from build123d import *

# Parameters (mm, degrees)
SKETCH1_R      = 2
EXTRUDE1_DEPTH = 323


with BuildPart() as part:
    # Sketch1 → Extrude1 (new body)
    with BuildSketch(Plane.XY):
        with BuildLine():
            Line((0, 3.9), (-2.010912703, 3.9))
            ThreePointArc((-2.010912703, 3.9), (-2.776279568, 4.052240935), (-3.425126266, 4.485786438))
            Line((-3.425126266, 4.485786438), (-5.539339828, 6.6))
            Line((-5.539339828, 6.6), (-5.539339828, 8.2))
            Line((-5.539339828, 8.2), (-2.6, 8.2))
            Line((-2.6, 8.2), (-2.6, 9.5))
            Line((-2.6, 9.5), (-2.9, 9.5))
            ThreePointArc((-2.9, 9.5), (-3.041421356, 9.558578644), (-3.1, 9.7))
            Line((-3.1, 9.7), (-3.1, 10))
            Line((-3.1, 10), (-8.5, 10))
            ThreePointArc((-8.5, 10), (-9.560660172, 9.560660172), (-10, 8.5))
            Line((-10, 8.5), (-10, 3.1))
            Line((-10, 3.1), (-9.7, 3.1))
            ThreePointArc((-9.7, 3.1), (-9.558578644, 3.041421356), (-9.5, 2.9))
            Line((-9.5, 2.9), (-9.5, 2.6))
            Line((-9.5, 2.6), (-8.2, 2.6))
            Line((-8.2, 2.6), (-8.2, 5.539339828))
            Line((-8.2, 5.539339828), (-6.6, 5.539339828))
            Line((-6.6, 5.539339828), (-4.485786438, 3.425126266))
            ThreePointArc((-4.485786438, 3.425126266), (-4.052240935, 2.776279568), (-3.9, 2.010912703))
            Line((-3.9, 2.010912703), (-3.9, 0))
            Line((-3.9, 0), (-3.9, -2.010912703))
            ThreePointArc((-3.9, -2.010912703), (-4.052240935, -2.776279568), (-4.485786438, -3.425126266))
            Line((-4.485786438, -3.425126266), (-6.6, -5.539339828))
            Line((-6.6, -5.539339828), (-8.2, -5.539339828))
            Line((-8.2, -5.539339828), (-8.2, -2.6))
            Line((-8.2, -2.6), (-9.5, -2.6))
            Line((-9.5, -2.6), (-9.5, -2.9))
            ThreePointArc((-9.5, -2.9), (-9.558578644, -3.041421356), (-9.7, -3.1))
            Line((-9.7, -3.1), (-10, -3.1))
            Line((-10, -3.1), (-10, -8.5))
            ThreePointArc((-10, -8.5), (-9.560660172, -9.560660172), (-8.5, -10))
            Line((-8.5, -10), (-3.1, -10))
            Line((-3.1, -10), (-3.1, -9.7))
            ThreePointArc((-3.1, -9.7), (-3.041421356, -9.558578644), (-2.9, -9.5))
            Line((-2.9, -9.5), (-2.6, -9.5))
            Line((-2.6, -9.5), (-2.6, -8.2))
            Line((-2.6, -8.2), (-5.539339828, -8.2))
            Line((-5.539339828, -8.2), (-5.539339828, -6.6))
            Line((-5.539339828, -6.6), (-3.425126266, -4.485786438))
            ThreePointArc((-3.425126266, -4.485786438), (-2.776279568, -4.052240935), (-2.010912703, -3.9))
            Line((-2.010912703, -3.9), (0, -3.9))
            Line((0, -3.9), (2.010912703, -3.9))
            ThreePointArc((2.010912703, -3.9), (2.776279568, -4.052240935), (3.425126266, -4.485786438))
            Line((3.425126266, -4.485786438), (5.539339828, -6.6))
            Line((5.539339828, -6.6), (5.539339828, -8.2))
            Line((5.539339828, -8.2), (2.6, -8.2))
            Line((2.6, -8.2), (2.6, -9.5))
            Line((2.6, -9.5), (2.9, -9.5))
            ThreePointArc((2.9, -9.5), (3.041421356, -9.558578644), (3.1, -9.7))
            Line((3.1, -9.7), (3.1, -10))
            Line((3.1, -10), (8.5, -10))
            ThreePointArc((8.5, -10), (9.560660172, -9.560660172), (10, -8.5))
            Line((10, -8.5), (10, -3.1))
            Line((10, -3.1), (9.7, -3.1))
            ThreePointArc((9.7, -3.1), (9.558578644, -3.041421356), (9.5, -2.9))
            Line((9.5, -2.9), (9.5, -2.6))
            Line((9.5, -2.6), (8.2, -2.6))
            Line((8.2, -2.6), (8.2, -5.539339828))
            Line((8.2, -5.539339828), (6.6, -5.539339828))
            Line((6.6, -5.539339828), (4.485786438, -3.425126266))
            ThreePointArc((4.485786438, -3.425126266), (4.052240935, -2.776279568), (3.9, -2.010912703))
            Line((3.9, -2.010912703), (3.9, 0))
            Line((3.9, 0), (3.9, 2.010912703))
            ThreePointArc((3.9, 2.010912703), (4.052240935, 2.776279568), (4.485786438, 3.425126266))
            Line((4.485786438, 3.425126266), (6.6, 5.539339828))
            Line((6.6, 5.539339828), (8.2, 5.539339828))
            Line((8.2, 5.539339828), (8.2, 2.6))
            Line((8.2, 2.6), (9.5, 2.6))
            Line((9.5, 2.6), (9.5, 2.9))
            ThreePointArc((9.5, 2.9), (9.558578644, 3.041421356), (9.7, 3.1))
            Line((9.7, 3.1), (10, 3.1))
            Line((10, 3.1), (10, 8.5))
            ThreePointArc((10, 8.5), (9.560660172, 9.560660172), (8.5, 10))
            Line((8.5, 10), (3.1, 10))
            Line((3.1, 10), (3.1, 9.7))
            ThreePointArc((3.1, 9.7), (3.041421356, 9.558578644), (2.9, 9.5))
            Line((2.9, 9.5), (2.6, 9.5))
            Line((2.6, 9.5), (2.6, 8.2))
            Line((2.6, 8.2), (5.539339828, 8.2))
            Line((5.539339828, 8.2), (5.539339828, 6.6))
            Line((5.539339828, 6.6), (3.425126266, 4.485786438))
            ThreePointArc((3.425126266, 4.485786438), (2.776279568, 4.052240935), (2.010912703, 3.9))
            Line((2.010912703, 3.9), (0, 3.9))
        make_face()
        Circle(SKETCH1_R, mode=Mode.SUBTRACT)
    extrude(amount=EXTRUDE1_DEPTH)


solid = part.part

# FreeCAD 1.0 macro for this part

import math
import FreeCAD as App
import Part
import Sketcher

V = App.Vector
Q = App.Units.Quantity

doc = App.newDocument("Part")
body = doc.addObject("PartDesign::Body", "Body")

# Sketch on XY plane
sketch1 = doc.addObject("Sketcher::SketchObject", "Sketch")
body.addObject(sketch1)
sketch1.AttachmentSupport = (doc.XY_Plane, [""])
sketch1.MapMode = "FlatFace"
sketch1.addGeometry([
    Part.ArcOfCircle(Part.Circle(V(-2.010913, 5.9, 0), V(0, 0, 1), 2), math.radians(-135), math.radians(-90)),  # 0
    Part.LineSegment(V(-3.425126, 4.485786, 0), V(-5.53934, 6.6, 0)),  # 1
    Part.LineSegment(V(-5.53934, 6.6, 0), V(-5.53934, 8.2, 0)),  # 2
    Part.LineSegment(V(-5.53934, 8.2, 0), V(-2.6, 8.2, 0)),  # 3
    Part.LineSegment(V(-2.6, 8.2, 0), V(-2.6, 9.5, 0)),  # 4
    Part.LineSegment(V(-2.6, 9.5, 0), V(-2.9, 9.5, 0)),  # 5
    Part.ArcOfCircle(Part.Circle(V(-2.9, 9.7, 0), V(0, 0, 1), 0.2), math.radians(-180), math.radians(-90)),  # 6
    Part.LineSegment(V(-3.1, 9.7, 0), V(-3.1, 10, 0)),  # 7
    Part.LineSegment(V(-3.1, 10, 0), V(-8.5, 10, 0)),  # 8
    Part.ArcOfCircle(Part.Circle(V(-8.5, 8.5, 0), V(0, 0, 1), 1.5), math.radians(90), math.radians(180)),  # 9
    Part.LineSegment(V(-10, 8.5, 0), V(-10, 3.1, 0)),  # 10
    Part.LineSegment(V(-10, 3.1, 0), V(-9.7, 3.1, 0)),  # 11
    Part.ArcOfCircle(Part.Circle(V(-9.7, 2.9, 0), V(0, 0, 1), 0.2), math.radians(0), math.radians(90)),  # 12
    Part.LineSegment(V(-9.5, 2.9, 0), V(-9.5, 2.6, 0)),  # 13
    Part.LineSegment(V(-9.5, 2.6, 0), V(-8.2, 2.6, 0)),  # 14
    Part.LineSegment(V(-8.2, 2.6, 0), V(-8.2, 5.53934, 0)),  # 15
    Part.LineSegment(V(-8.2, 5.53934, 0), V(-6.6, 5.53934, 0)),  # 16
    Part.LineSegment(V(-6.6, 5.53934, 0), V(-4.485786, 3.425126, 0)),  # 17
    Part.ArcOfCircle(Part.Circle(V(-5.9, 2.010913, 0), V(0, 0, 1), 2), math.radians(0), math.radians(45)),  # 18
    Part.LineSegment(V(-3.9, 2.010913, 0), V(-3.9, -2.010913, 0)),  # 19
    Part.ArcOfCircle(Part.Circle(V(-5.9, -2.010913, 0), V(0, 0, 1), 2), math.radians(-45), math.radians(0)),  # 20
    Part.LineSegment(V(-4.485786, -3.425126, 0), V(-6.6, -5.53934, 0)),  # 21
    Part.LineSegment(V(-6.6, -5.53934, 0), V(-8.2, -5.53934, 0)),  # 22
    Part.LineSegment(V(-8.2, -5.53934, 0), V(-8.2, -2.6, 0)),  # 23
    Part.LineSegment(V(-8.2, -2.6, 0), V(-9.5, -2.6, 0)),  # 24
    Part.LineSegment(V(-9.5, -2.6, 0), V(-9.5, -2.9, 0)),  # 25
    Part.ArcOfCircle(Part.Circle(V(-9.7, -2.9, 0), V(0, 0, 1), 0.2), math.radians(-90), math.radians(0)),  # 26
    Part.LineSegment(V(-9.7, -3.1, 0), V(-10, -3.1, 0)),  # 27
    Part.LineSegment(V(-10, -3.1, 0), V(-10, -8.5, 0)),  # 28
    Part.ArcOfCircle(Part.Circle(V(-8.5, -8.5, 0), V(0, 0, 1), 1.5), math.radians(180), math.radians(270)),  # 29
    Part.LineSegment(V(-8.5, -10, 0), V(-3.1, -10, 0)),  # 30
    Part.LineSegment(V(-3.1, -10, 0), V(-3.1, -9.7, 0)),  # 31
    Part.ArcOfCircle(Part.Circle(V(-2.9, -9.7, 0), V(0, 0, 1), 0.2), math.radians(90), math.radians(180)),  # 32
    Part.LineSegment(V(-2.9, -9.5, 0), V(-2.6, -9.5, 0)),  # 33
    Part.LineSegment(V(-2.6, -9.5, 0), V(-2.6, -8.2, 0)),  # 34
    Part.LineSegment(V(-2.6, -8.2, 0), V(-5.53934, -8.2, 0)),  # 35
    Part.LineSegment(V(-5.53934, -8.2, 0), V(-5.53934, -6.6, 0)),  # 36
    Part.LineSegment(V(-5.53934, -6.6, 0), V(-3.425126, -4.485786, 0)),  # 37
    Part.ArcOfCircle(Part.Circle(V(-2.010913, -5.9, 0), V(0, 0, 1), 2), math.radians(90), math.radians(135)),  # 38
    Part.LineSegment(V(-2.010913, -3.9, 0), V(2.010913, -3.9, 0)),  # 39
    Part.ArcOfCircle(Part.Circle(V(2.010913, -5.9, 0), V(0, 0, 1), 2), math.radians(45), math.radians(90)),  # 40
    Part.LineSegment(V(3.425126, -4.485786, 0), V(5.53934, -6.6, 0)),  # 41
    Part.LineSegment(V(5.53934, -6.6, 0), V(5.53934, -8.2, 0)),  # 42
    Part.LineSegment(V(5.53934, -8.2, 0), V(2.6, -8.2, 0)),  # 43
    Part.LineSegment(V(2.6, -8.2, 0), V(2.6, -9.5, 0)),  # 44
    Part.LineSegment(V(2.6, -9.5, 0), V(2.9, -9.5, 0)),  # 45
    Part.ArcOfCircle(Part.Circle(V(2.9, -9.7, 0), V(0, 0, 1), 0.2), math.radians(0), math.radians(90)),  # 46
    Part.LineSegment(V(3.1, -9.7, 0), V(3.1, -10, 0)),  # 47
    Part.LineSegment(V(3.1, -10, 0), V(8.5, -10, 0)),  # 48
    Part.ArcOfCircle(Part.Circle(V(8.5, -8.5, 0), V(0, 0, 1), 1.5), math.radians(-90), math.radians(0)),  # 49
    Part.LineSegment(V(10, -8.5, 0), V(10, -3.1, 0)),  # 50
    Part.LineSegment(V(10, -3.1, 0), V(9.7, -3.1, 0)),  # 51
    Part.ArcOfCircle(Part.Circle(V(9.7, -2.9, 0), V(0, 0, 1), 0.2), math.radians(-180), math.radians(-90)),  # 52
    Part.LineSegment(V(9.5, -2.9, 0), V(9.5, -2.6, 0)),  # 53
    Part.LineSegment(V(9.5, -2.6, 0), V(8.2, -2.6, 0)),  # 54
    Part.LineSegment(V(8.2, -2.6, 0), V(8.2, -5.53934, 0)),  # 55
    Part.LineSegment(V(8.2, -5.53934, 0), V(6.6, -5.53934, 0)),  # 56
    Part.LineSegment(V(6.6, -5.53934, 0), V(4.485786, -3.425126, 0)),  # 57
    Part.ArcOfCircle(Part.Circle(V(5.9, -2.010913, 0), V(0, 0, 1), 2), math.radians(180), math.radians(225)),  # 58
    Part.LineSegment(V(3.9, -2.010913, 0), V(3.9, 2.010913, 0)),  # 59
    Part.ArcOfCircle(Part.Circle(V(5.9, 2.010913, 0), V(0, 0, 1), 2), math.radians(135), math.radians(180)),  # 60
    Part.LineSegment(V(4.485786, 3.425126, 0), V(6.6, 5.53934, 0)),  # 61
    Part.LineSegment(V(6.6, 5.53934, 0), V(8.2, 5.53934, 0)),  # 62
    Part.LineSegment(V(8.2, 5.53934, 0), V(8.2, 2.6, 0)),  # 63
    Part.LineSegment(V(8.2, 2.6, 0), V(9.5, 2.6, 0)),  # 64
    Part.LineSegment(V(9.5, 2.6, 0), V(9.5, 2.9, 0)),  # 65
    Part.ArcOfCircle(Part.Circle(V(9.7, 2.9, 0), V(0, 0, 1), 0.2), math.radians(90), math.radians(180)),  # 66
    Part.LineSegment(V(9.7, 3.1, 0), V(10, 3.1, 0)),  # 67
    Part.LineSegment(V(10, 3.1, 0), V(10, 8.5, 0)),  # 68
    Part.ArcOfCircle(Part.Circle(V(8.5, 8.5, 0), V(0, 0, 1), 1.5), math.radians(0), math.radians(90)),  # 69
    Part.LineSegment(V(8.5, 10, 0), V(3.1, 10, 0)),  # 70
    Part.LineSegment(V(3.1, 10, 0), V(3.1, 9.7, 0)),  # 71
    Part.ArcOfCircle(Part.Circle(V(2.9, 9.7, 0), V(0, 0, 1), 0.2), math.radians(-90), math.radians(0)),  # 72
    Part.LineSegment(V(2.9, 9.5, 0), V(2.6, 9.5, 0)),  # 73
    Part.LineSegment(V(2.6, 9.5, 0), V(2.6, 8.2, 0)),  # 74
    Part.LineSegment(V(2.6, 8.2, 0), V(5.53934, 8.2, 0)),  # 75
    Part.LineSegment(V(5.53934, 8.2, 0), V(5.53934, 6.6, 0)),  # 76
    Part.LineSegment(V(5.53934, 6.6, 0), V(3.425126, 4.485786, 0)),  # 77
    Part.ArcOfCircle(Part.Circle(V(2.010913, 5.9, 0), V(0, 0, 1), 2), math.radians(-90), math.radians(-45)),  # 78
    Part.LineSegment(V(2.010913, 3.9, 0), V(-2.010913, 3.9, 0)),  # 79
    Part.Circle(V(0, 0, 0), V(0, 0, 1), 2),  # 80
], False)
sketch1.addConstraint([
    Sketcher.Constraint("Tangent", 0, 1, 1, 1),
    Sketcher.Constraint("Coincident", 1, 2, 2, 1),
    Sketcher.Constraint("Coincident", 2, 2, 3, 1),
    Sketcher.Constraint("Coincident", 3, 2, 4, 1),
    Sketcher.Constraint("Coincident", 4, 2, 5, 1),
    Sketcher.Constraint("Tangent", 5, 2, 6, 2),
    Sketcher.Constraint("Tangent", 6, 1, 7, 1),
    Sketcher.Constraint("Coincident", 7, 2, 8, 1),
    Sketcher.Constraint("Tangent", 8, 2, 9, 1),
    Sketcher.Constraint("Tangent", 9, 2, 10, 1),
    Sketcher.Constraint("Coincident", 10, 2, 11, 1),
    Sketcher.Constraint("Tangent", 11, 2, 12, 2),
    Sketcher.Constraint("Tangent", 12, 1, 13, 1),
    Sketcher.Constraint("Coincident", 13, 2, 14, 1),
    Sketcher.Constraint("Coincident", 14, 2, 15, 1),
    Sketcher.Constraint("Coincident", 15, 2, 16, 1),
    Sketcher.Constraint("Coincident", 16, 2, 17, 1),
    Sketcher.Constraint("Tangent", 17, 2, 18, 2),
    Sketcher.Constraint("Tangent", 18, 1, 19, 1),
    Sketcher.Constraint("Tangent", 19, 2, 20, 2),
    Sketcher.Constraint("Tangent", 20, 1, 21, 1),
    Sketcher.Constraint("Coincident", 21, 2, 22, 1),
    Sketcher.Constraint("Coincident", 22, 2, 23, 1),
    Sketcher.Constraint("Coincident", 23, 2, 24, 1),
    Sketcher.Constraint("Coincident", 24, 2, 25, 1),
    Sketcher.Constraint("Tangent", 25, 2, 26, 2),
    Sketcher.Constraint("Tangent", 26, 1, 27, 1),
    Sketcher.Constraint("Coincident", 27, 2, 28, 1),
    Sketcher.Constraint("Tangent", 28, 2, 29, 1),
    Sketcher.Constraint("Tangent", 29, 2, 30, 1),
    Sketcher.Constraint("Coincident", 30, 2, 31, 1),
    Sketcher.Constraint("Tangent", 31, 2, 32, 2),
    Sketcher.Constraint("Tangent", 32, 1, 33, 1),
    Sketcher.Constraint("Coincident", 33, 2, 34, 1),
    Sketcher.Constraint("Coincident", 34, 2, 35, 1),
    Sketcher.Constraint("Coincident", 35, 2, 36, 1),
    Sketcher.Constraint("Coincident", 36, 2, 37, 1),
    Sketcher.Constraint("Tangent", 37, 2, 38, 2),
    Sketcher.Constraint("Tangent", 38, 1, 39, 1),
    Sketcher.Constraint("Tangent", 39, 2, 40, 2),
    Sketcher.Constraint("Tangent", 40, 1, 41, 1),
    Sketcher.Constraint("Coincident", 41, 2, 42, 1),
    Sketcher.Constraint("Coincident", 42, 2, 43, 1),
    Sketcher.Constraint("Coincident", 43, 2, 44, 1),
    Sketcher.Constraint("Coincident", 44, 2, 45, 1),
    Sketcher.Constraint("Tangent", 45, 2, 46, 2),
    Sketcher.Constraint("Tangent", 46, 1, 47, 1),
    Sketcher.Constraint("Coincident", 47, 2, 48, 1),
    Sketcher.Constraint("Tangent", 48, 2, 49, 1),
    Sketcher.Constraint("Tangent", 49, 2, 50, 1),
    Sketcher.Constraint("Coincident", 50, 2, 51, 1),
    Sketcher.Constraint("Tangent", 51, 2, 52, 2),
    Sketcher.Constraint("Tangent", 52, 1, 53, 1),
    Sketcher.Constraint("Coincident", 53, 2, 54, 1),
    Sketcher.Constraint("Coincident", 54, 2, 55, 1),
    Sketcher.Constraint("Coincident", 55, 2, 56, 1),
    Sketcher.Constraint("Coincident", 56, 2, 57, 1),
    Sketcher.Constraint("Tangent", 57, 2, 58, 2),
    Sketcher.Constraint("Tangent", 58, 1, 59, 1),
    Sketcher.Constraint("Tangent", 59, 2, 60, 2),
    Sketcher.Constraint("Tangent", 60, 1, 61, 1),
    Sketcher.Constraint("Coincident", 61, 2, 62, 1),
    Sketcher.Constraint("Coincident", 62, 2, 63, 1),
    Sketcher.Constraint("Coincident", 63, 2, 64, 1),
    Sketcher.Constraint("Coincident", 64, 2, 65, 1),
    Sketcher.Constraint("Tangent", 65, 2, 66, 2),
    Sketcher.Constraint("Tangent", 66, 1, 67, 1),
    Sketcher.Constraint("Coincident", 67, 2, 68, 1),
    Sketcher.Constraint("Tangent", 68, 2, 69, 1),
    Sketcher.Constraint("Tangent", 69, 2, 70, 1),
    Sketcher.Constraint("Coincident", 70, 2, 71, 1),
    Sketcher.Constraint("Tangent", 71, 2, 72, 2),
    Sketcher.Constraint("Tangent", 72, 1, 73, 1),
    Sketcher.Constraint("Coincident", 73, 2, 74, 1),
    Sketcher.Constraint("Coincident", 74, 2, 75, 1),
    Sketcher.Constraint("Coincident", 75, 2, 76, 1),
    Sketcher.Constraint("Coincident", 76, 2, 77, 1),
    Sketcher.Constraint("Tangent", 77, 2, 78, 2),
    Sketcher.Constraint("Tangent", 78, 1, 79, 1),
    Sketcher.Constraint("Tangent", 79, 2, 0, 2),
    Sketcher.Constraint("Vertical", 2),
    Sketcher.Constraint("Horizontal", 3),
    Sketcher.Constraint("Vertical", 4),
    Sketcher.Constraint("Horizontal", 5),
    Sketcher.Constraint("Vertical", 7),
    Sketcher.Constraint("Horizontal", 8),
    Sketcher.Constraint("Vertical", 10),
    Sketcher.Constraint("Horizontal", 11),
    Sketcher.Constraint("Vertical", 13),
    Sketcher.Constraint("Horizontal", 14),
    Sketcher.Constraint("Vertical", 15),
    Sketcher.Constraint("Horizontal", 16),
    Sketcher.Constraint("Vertical", 19),
    Sketcher.Constraint("Horizontal", 22),
    Sketcher.Constraint("Vertical", 23),
    Sketcher.Constraint("Horizontal", 24),
    Sketcher.Constraint("Vertical", 25),
    Sketcher.Constraint("Horizontal", 27),
    Sketcher.Constraint("Vertical", 28),
    Sketcher.Constraint("Horizontal", 30),
    Sketcher.Constraint("Vertical", 31),
    Sketcher.Constraint("Horizontal", 33),
    Sketcher.Constraint("Vertical", 34),
    Sketcher.Constraint("Horizontal", 35),
    Sketcher.Constraint("Vertical", 36),
    Sketcher.Constraint("Horizontal", 39),
    Sketcher.Constraint("Vertical", 42),
    Sketcher.Constraint("Horizontal", 43),
    Sketcher.Constraint("Vertical", 44),
    Sketcher.Constraint("Horizontal", 45),
    Sketcher.Constraint("Vertical", 47),
    Sketcher.Constraint("Horizontal", 48),
    Sketcher.Constraint("Vertical", 50),
    Sketcher.Constraint("Horizontal", 51),
    Sketcher.Constraint("Vertical", 53),
    Sketcher.Constraint("Horizontal", 54),
    Sketcher.Constraint("Vertical", 55),
    Sketcher.Constraint("Horizontal", 56),
    Sketcher.Constraint("Vertical", 59),
    Sketcher.Constraint("Horizontal", 62),
    Sketcher.Constraint("Vertical", 63),
    Sketcher.Constraint("Horizontal", 64),
    Sketcher.Constraint("Vertical", 65),
    Sketcher.Constraint("Horizontal", 67),
    Sketcher.Constraint("Vertical", 68),
    Sketcher.Constraint("Horizontal", 70),
    Sketcher.Constraint("Vertical", 71),
    Sketcher.Constraint("Horizontal", 73),
    Sketcher.Constraint("Vertical", 74),
    Sketcher.Constraint("Horizontal", 75),
    Sketcher.Constraint("Vertical", 76),
    Sketcher.Constraint("Horizontal", 79),
    Sketcher.Constraint("Coincident", 80, 3, -1, 1),
    Sketcher.Constraint("Equal", 6, 12),
    Sketcher.Constraint("Equal", 0, 18),
    Sketcher.Constraint("Equal", 18, 20),
    Sketcher.Constraint("Equal", 12, 26),
    Sketcher.Constraint("Equal", 9, 29),
    Sketcher.Constraint("Equal", 26, 32),
    Sketcher.Constraint("Equal", 20, 38),
    Sketcher.Constraint("Equal", 38, 40),
    Sketcher.Constraint("Equal", 32, 46),
    Sketcher.Constraint("Equal", 29, 49),
    Sketcher.Constraint("Equal", 46, 52),
    Sketcher.Constraint("Equal", 40, 58),
    Sketcher.Constraint("Equal", 58, 60),
    Sketcher.Constraint("Equal", 52, 66),
    Sketcher.Constraint("Equal", 49, 69),
    Sketcher.Constraint("Equal", 66, 72),
    Sketcher.Constraint("Equal", 60, 78),
    Sketcher.Constraint("Equal", 78, 80),
    Sketcher.Constraint("Symmetric", 0, 3, 40, 3, -1, 1),
    Sketcher.Constraint("Symmetric", 6, 3, 46, 3, -1, 1),
    Sketcher.Constraint("Symmetric", 9, 3, 49, 3, -1, 1),
    Sketcher.Constraint("Symmetric", 12, 3, 52, 3, -1, 1),
    Sketcher.Constraint("Symmetric", 18, 3, 58, 3, -1, 1),
    Sketcher.Constraint("Symmetric", 26, 3, 66, 3, -1, 1),
    Sketcher.Constraint("Symmetric", 29, 3, 69, 3, -1, 1),
    Sketcher.Constraint("Symmetric", 32, 3, 72, 3, -1, 1),
    Sketcher.Constraint("Symmetric", 1, 2, 41, 2, -1, 1),
    Sketcher.Constraint("Symmetric", 3, 2, 43, 2, -1, 1),
    Sketcher.Constraint("Symmetric", 14, 2, 54, 2, -1, 1),
    Sketcher.Constraint("Symmetric", 16, 2, 56, 2, -1, 1),
    Sketcher.Constraint("Symmetric", 20, 1, 60, 1, -1, 1),
    Sketcher.Constraint("Symmetric", 22, 2, 62, 2, -1, 1),
    Sketcher.Constraint("Symmetric", 34, 2, 74, 2, -1, 1),
    Sketcher.Constraint("Symmetric", 36, 2, 76, 2, -1, 1),
    Sketcher.Constraint("Symmetric", 32, 3, 46, 3, -2),
    Sketcher.Constraint("Symmetric", 29, 3, 49, 3, -2),
    Sketcher.Constraint("Symmetric", 26, 3, 52, 3, -2),
    Sketcher.Constraint("Symmetric", 37, 2, 40, 1, -2),
    Sketcher.Constraint("Symmetric", 35, 2, 42, 2, -2),
    Sketcher.Constraint("Symmetric", 23, 2, 54, 2, -2),
    Sketcher.Constraint("Symmetric", 21, 2, 56, 2, -2),
    Sketcher.Constraint("Parallel", 1, 17),
    Sketcher.Constraint("Perpendicular", 17, 21),
    Sketcher.Constraint("Parallel", 21, 37),
    Sketcher.Constraint("Parallel", 61, 77),
    Sketcher.Constraint("Horizontal", 14, 2, 63, 2),
    Sketcher.Constraint("Vertical", 4, 2, 33, 2),
    Sketcher.Constraint("Equal", 5, 11),
    Sketcher.Constraint("Equal", 62, 2),
    Sketcher.Constraint("Equal", 64, 4),
    Sketcher.Constraint("Equal", 73, 7),
    Sketcher.Constraint("Equal", 70, 10),
    Sketcher.Constraint("Equal", 7, 13),
    Sketcher.Constraint("Equal", 75, 15),
    Sketcher.Constraint("Equal", 79, 19),
    Sketcher.Constraint("Equal", 1, 17),
    Sketcher.Constraint("Diameter", 80, Q("4 mm")),
    Sketcher.Constraint("Radius", 6, Q("0.2 mm")),
    Sketcher.Constraint("Radius", 9, Q("1.5 mm")),
    Sketcher.Constraint("DistanceX", 5, 2, 5, 1, Q("0.3 mm")),
    Sketcher.Constraint("DistanceX", 8, 2, 8, 1, Q("5.4 mm")),
    Sketcher.Constraint("DistanceX", 14, 1, 14, 2, Q("1.3 mm")),
    Sketcher.Constraint("DistanceX", 16, 1, 16, 2, Q("1.6 mm")),
    Sketcher.Constraint("DistanceY", -1, 1, 7, 2, Q("10 mm")),
    Sketcher.Constraint("DistanceY", -1, 1, 0, 3, Q("5.9 mm")),
    Sketcher.Constraint("DistanceX", 3, 1, 3, 2, Q("2.93934 mm")),
])
pad1 = doc.addObject("PartDesign::Pad", "Pad")
body.addObject(pad1)
pad1.Profile = sketch1
pad1.Length = 323

doc.recompute()
